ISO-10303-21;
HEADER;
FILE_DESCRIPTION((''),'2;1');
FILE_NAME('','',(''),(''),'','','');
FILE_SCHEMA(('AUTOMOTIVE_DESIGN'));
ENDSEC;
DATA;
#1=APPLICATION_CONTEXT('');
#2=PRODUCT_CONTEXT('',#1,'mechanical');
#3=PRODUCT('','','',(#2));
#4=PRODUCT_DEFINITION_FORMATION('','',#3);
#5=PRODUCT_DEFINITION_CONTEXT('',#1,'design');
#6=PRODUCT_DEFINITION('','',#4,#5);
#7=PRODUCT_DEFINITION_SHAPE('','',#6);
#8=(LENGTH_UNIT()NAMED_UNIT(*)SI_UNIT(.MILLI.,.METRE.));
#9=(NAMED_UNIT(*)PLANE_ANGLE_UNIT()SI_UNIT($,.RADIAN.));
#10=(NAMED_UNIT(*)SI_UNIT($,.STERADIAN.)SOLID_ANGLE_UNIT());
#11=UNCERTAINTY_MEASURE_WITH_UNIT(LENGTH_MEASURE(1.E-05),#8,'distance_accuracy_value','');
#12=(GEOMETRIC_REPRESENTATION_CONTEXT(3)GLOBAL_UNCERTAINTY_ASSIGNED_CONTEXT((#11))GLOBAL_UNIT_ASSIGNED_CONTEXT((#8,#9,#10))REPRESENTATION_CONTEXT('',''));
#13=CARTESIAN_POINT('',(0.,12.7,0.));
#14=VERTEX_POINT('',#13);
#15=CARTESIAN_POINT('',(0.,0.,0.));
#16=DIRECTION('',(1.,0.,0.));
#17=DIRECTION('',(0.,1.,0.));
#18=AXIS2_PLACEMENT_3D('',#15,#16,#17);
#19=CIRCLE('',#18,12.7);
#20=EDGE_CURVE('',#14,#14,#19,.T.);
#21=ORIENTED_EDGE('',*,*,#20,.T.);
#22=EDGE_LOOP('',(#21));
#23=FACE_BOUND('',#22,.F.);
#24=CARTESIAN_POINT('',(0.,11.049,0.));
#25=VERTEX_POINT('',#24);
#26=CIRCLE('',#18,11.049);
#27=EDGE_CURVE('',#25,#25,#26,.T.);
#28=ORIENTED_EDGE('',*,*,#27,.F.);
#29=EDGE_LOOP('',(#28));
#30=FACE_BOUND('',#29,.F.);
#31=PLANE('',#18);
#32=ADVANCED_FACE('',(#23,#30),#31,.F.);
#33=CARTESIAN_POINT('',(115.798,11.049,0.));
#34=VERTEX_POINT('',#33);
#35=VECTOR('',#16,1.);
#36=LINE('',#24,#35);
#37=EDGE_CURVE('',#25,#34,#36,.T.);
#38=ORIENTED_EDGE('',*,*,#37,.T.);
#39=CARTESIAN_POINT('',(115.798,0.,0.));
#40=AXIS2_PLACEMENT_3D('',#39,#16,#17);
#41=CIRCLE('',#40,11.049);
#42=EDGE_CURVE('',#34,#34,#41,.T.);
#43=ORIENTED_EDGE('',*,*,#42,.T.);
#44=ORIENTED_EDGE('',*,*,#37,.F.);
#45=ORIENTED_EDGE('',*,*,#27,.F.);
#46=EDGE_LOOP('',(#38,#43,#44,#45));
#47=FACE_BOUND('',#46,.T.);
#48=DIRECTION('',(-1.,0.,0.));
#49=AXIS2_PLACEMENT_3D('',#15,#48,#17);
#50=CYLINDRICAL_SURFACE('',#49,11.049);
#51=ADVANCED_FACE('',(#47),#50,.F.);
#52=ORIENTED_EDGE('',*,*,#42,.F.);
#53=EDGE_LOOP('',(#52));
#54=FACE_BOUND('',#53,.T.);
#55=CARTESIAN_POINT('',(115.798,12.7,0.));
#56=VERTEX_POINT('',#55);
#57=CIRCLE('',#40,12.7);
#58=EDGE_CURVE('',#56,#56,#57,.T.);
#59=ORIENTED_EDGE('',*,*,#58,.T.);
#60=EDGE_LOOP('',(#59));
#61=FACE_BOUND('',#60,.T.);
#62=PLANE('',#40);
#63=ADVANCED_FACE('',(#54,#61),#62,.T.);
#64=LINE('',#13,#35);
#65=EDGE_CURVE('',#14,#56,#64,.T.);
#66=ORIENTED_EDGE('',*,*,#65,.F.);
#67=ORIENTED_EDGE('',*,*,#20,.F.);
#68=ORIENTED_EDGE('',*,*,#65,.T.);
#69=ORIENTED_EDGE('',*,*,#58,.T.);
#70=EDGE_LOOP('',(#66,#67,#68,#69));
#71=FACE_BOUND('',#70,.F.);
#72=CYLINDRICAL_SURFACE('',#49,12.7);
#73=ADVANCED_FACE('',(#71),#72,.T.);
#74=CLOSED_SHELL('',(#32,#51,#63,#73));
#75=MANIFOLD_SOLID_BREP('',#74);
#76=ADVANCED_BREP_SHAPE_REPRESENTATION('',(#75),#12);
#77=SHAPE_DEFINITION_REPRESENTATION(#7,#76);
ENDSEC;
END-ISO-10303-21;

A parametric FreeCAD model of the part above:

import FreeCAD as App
import Part
import Sketcher

V = App.Vector
Q = App.Units.Quantity

doc = App.newDocument("Part")
body = doc.addObject("PartDesign::Body", "Body")

# Sketch on YZ plane
sketch1 = doc.addObject("Sketcher::SketchObject", "Sketch")
body.addObject(sketch1)
sketch1.AttachmentSupport = (doc.YZ_Plane, [""])
sketch1.MapMode = "FlatFace"
sketch1.addGeometry([
    Part.Circle(V(0, 0, 0), V(0, 0, 1), 13),
    Part.Circle(V(0, 0, 0), V(0, 0, 1), 11),
], False)
sketch1.addConstraint([
    Sketcher.Constraint("Coincident", 0, 3, -1, 1),
    Sketcher.Constraint("Coincident", 1, 3, -1, 1),
    Sketcher.Constraint("Diameter", 0, Q("1 in")),
    Sketcher.Constraint("Diameter", 1, Q("0.87 in")),
])
pad1 = doc.addObject("PartDesign::Pad", "Pad")
body.addObject(pad1)
pad1.Profile = sketch1
pad1.Length = 115.798

doc.recompute()
